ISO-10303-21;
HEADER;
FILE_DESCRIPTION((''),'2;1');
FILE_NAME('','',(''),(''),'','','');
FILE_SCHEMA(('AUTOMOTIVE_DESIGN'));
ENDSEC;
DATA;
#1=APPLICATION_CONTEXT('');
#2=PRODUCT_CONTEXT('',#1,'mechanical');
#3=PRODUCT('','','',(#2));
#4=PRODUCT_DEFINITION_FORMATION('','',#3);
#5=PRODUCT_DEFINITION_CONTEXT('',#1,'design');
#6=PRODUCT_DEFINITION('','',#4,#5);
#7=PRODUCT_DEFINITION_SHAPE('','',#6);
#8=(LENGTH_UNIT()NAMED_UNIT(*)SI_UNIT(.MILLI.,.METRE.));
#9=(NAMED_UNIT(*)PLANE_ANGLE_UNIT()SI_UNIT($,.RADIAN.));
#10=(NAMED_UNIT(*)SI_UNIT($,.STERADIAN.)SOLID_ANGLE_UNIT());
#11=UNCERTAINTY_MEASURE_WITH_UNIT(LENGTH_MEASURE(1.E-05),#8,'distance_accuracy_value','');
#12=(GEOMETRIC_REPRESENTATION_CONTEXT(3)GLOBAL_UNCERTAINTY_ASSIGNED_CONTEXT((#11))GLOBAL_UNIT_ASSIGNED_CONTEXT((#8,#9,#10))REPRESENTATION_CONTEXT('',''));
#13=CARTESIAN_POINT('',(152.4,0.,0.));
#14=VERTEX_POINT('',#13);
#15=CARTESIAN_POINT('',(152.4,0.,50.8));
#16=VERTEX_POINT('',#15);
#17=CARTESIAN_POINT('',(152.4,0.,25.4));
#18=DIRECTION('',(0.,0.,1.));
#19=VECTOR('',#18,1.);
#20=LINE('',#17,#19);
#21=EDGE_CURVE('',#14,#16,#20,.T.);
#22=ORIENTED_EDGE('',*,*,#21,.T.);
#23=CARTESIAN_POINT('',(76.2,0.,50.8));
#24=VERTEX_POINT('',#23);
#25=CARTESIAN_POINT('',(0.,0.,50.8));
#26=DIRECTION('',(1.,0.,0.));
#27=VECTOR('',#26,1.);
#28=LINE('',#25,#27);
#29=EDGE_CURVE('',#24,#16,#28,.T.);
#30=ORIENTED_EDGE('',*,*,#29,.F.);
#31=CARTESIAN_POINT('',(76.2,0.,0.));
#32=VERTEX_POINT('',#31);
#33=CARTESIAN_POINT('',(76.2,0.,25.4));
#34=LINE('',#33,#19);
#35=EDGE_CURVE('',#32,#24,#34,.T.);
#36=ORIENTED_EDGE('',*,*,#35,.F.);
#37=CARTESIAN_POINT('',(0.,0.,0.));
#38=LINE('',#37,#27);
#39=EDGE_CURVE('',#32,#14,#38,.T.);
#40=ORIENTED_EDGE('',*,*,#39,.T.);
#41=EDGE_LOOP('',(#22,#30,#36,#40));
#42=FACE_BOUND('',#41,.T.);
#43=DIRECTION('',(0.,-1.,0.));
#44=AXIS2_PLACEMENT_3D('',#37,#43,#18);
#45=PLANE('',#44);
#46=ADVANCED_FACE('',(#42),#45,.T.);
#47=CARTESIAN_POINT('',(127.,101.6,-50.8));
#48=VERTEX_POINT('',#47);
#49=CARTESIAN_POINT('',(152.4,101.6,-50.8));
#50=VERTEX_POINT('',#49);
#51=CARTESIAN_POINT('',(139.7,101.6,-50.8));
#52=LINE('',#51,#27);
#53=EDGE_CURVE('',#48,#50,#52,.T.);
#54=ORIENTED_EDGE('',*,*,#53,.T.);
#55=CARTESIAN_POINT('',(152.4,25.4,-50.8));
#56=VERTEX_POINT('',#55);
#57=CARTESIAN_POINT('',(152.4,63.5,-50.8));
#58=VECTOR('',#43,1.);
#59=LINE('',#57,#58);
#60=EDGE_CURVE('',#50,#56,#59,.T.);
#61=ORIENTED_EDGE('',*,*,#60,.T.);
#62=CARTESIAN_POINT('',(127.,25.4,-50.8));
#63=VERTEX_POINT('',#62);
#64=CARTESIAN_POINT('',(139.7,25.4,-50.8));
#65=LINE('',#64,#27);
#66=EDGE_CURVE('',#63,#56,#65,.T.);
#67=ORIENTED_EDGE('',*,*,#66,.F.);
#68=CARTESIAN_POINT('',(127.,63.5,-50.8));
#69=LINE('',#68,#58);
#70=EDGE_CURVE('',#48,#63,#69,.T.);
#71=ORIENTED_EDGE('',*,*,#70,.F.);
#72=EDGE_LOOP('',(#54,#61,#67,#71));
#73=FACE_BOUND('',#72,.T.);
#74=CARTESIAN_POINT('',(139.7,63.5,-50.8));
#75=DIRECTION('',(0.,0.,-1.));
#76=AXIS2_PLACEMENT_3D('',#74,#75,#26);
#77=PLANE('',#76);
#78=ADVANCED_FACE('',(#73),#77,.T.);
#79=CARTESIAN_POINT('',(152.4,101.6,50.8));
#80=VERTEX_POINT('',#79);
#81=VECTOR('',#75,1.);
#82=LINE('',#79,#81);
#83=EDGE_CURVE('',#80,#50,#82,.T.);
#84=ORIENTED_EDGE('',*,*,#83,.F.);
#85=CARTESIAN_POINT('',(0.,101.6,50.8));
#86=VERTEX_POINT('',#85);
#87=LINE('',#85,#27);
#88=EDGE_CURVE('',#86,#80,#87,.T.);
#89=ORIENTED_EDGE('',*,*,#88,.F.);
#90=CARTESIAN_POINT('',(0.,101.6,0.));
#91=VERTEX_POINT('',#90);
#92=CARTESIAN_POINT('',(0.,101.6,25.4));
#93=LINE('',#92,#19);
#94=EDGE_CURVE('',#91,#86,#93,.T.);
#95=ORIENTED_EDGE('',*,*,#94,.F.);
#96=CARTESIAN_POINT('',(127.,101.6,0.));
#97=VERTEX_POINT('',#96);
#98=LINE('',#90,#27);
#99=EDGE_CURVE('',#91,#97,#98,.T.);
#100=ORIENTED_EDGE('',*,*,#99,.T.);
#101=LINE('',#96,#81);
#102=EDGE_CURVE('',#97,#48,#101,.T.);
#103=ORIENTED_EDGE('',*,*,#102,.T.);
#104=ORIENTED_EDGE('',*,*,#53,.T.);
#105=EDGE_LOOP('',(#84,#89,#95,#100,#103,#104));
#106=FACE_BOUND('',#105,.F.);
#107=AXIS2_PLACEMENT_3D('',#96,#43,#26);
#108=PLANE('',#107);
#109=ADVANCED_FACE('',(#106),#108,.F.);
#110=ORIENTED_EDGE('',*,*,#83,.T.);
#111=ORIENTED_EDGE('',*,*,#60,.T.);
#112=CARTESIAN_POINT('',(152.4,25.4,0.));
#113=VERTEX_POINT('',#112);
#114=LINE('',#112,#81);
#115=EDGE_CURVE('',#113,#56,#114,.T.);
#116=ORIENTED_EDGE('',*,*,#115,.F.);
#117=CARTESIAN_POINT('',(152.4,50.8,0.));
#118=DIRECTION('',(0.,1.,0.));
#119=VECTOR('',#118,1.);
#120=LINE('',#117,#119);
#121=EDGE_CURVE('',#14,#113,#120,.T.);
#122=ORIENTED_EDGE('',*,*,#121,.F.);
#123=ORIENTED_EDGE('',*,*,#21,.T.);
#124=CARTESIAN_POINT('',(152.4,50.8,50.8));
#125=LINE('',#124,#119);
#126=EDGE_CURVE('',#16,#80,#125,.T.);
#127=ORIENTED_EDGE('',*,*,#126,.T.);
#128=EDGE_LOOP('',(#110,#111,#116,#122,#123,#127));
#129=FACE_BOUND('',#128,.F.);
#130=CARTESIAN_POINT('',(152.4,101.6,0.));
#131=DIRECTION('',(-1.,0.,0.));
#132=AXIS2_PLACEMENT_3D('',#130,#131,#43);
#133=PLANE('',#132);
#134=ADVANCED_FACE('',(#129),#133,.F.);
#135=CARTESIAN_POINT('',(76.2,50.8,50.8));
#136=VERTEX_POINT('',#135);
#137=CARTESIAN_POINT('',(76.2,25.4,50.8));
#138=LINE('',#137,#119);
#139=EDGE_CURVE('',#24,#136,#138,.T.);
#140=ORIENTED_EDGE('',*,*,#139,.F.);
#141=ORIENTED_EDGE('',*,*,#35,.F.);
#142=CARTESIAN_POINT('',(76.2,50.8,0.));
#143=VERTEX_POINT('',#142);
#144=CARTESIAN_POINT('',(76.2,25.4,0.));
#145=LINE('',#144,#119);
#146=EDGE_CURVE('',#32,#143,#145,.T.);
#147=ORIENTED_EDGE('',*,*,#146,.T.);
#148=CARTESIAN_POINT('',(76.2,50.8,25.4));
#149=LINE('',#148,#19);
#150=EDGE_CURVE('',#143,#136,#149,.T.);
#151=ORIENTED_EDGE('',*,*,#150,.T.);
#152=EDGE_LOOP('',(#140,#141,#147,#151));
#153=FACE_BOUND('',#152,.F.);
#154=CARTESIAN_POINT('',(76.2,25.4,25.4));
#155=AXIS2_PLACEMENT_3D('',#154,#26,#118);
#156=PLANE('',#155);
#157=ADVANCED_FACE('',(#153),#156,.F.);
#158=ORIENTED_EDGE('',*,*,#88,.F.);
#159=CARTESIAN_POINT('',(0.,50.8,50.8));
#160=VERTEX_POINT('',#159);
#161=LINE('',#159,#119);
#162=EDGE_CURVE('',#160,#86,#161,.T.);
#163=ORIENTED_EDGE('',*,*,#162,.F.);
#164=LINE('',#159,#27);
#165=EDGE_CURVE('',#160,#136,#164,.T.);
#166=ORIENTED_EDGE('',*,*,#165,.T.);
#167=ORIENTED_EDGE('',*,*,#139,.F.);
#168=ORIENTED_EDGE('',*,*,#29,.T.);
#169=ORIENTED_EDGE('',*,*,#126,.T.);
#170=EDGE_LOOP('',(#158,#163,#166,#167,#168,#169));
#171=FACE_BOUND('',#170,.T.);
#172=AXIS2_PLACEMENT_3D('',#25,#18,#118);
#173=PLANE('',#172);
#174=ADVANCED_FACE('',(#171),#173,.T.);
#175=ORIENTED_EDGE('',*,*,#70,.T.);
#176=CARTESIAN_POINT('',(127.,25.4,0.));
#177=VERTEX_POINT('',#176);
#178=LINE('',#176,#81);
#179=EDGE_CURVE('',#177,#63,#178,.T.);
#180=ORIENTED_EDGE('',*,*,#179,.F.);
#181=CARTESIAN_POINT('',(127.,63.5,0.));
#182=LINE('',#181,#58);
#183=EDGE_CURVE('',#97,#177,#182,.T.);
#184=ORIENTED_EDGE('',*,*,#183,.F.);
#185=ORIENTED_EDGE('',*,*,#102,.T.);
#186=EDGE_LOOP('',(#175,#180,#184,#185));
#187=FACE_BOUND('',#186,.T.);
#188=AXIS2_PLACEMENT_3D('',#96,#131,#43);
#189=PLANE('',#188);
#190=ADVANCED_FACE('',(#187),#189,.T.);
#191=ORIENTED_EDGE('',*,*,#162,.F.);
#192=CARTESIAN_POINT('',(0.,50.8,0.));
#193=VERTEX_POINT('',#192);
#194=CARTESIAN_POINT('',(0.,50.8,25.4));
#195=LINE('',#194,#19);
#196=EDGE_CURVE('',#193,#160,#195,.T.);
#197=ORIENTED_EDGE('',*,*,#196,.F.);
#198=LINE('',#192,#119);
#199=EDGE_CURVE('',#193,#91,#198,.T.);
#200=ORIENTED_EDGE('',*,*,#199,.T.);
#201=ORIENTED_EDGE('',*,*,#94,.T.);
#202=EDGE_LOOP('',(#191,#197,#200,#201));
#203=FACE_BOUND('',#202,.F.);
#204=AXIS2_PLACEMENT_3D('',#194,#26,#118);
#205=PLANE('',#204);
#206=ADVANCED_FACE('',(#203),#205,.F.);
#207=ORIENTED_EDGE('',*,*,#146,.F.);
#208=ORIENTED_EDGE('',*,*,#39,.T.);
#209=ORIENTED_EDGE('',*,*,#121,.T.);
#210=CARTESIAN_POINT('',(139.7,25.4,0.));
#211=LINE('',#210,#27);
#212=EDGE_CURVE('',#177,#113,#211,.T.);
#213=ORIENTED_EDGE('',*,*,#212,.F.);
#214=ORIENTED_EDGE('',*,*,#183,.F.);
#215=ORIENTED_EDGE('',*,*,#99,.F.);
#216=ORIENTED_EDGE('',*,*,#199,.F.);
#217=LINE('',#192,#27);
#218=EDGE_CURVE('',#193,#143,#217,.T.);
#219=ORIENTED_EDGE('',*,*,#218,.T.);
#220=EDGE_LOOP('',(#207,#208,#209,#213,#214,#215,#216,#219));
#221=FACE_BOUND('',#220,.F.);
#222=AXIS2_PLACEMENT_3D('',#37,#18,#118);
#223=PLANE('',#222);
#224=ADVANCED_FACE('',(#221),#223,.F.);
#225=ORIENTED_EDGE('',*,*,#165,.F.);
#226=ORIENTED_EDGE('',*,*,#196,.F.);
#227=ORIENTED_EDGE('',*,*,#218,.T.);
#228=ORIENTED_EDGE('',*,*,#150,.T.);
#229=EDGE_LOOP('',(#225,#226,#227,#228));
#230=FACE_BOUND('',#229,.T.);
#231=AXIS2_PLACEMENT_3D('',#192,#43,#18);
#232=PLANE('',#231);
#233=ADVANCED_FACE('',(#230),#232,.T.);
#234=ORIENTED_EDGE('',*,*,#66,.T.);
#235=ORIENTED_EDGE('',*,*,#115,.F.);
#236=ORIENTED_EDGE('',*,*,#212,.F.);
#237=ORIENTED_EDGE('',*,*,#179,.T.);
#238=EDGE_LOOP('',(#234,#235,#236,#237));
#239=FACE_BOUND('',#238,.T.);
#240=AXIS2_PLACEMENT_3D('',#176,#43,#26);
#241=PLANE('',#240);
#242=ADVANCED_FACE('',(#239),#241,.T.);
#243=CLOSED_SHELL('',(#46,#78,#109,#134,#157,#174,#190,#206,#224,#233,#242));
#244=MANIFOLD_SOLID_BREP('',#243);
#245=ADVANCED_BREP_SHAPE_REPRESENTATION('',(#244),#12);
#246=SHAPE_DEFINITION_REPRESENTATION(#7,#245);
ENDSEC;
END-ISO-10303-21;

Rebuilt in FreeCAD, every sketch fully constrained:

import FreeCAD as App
import Part
import Sketcher
Q = App.Units.Quantity


def add_polygon(sketch, points):
    """Adds a closed chain of lines whose ends are joined by coincident constraints."""
    first, n = sketch.GeometryCount, len(points)
    for a, b in zip(points, points[1:] + points[:1]):
        sketch.addGeometry(Part.LineSegment(App.Vector(*a, 0), App.Vector(*b, 0)), False)
    for i in range(n):
        sketch.addConstraint(Sketcher.Constraint("Coincident", first + i, 2, first + (i + 1) % n, 1))

doc = App.newDocument("Part")
params = doc.addObject("Spreadsheet::Sheet", "Params")
for row, (alias, value) in enumerate([
    ("sketch1_width", "4 in"),
    ("sketch1_height", "2 in"),
    ("pad1_length", "6 in"),
    ("sketch2_width", "2 in"),
    ("pocket1_length", "3 in"),
    ("sketch3_width", "1 in"),
    ("sketch3_height", "3 in"),
    ("pad2_length", "2 in"),
], start=1):
    params.set(f"A{row}", alias)
    params.set(f"B{row}", "=" + value)
    params.setAlias(f"B{row}", alias)

body = doc.addObject("PartDesign::Body", "Body")

# Sketch on YZ plane
sketch1 = doc.addObject("Sketcher::SketchObject", "Sketch")
body.addObject(sketch1)
sketch1.AttachmentSupport = (doc.YZ_Plane, [""])
sketch1.MapMode = "FlatFace"
add_polygon(sketch1, [(0, 51), (0, 0), (102, 0), (102, 51)])  # lines 0-3
sketch1.addConstraint([
    Sketcher.Constraint("Vertical", 0),
    Sketcher.Constraint("Horizontal", 1),
    Sketcher.Constraint("Vertical", 2),
    Sketcher.Constraint("Horizontal", 3),
    Sketcher.Constraint("Coincident", 0, 2, -1, 1),
    Sketcher.Constraint("DistanceX", 1, 1, 1, 2, Q("4 in")),
    Sketcher.Constraint("DistanceY", 0, 2, 0, 1, Q("2 in")),
])
sketch1.setExpression("Constraints[9]", "Params.sketch1_width")
sketch1.setExpression("Constraints[10]", "Params.sketch1_height")
pad1 = doc.addObject("PartDesign::Pad", "Pad")
body.addObject(pad1)
pad1.Profile = sketch1
pad1.setExpression("Length", "Params.pad1_length")

# Sketch on YZ plane
sketch2 = doc.addObject("Sketcher::SketchObject", "Sketch001")
body.addObject(sketch2)
sketch2.AttachmentSupport = (doc.YZ_Plane, [""])
sketch2.MapMode = "FlatFace"
add_polygon(sketch2, [(0, 51), (0, 0), (51, 0), (51, 51)])  # lines 0-3
sketch2.addConstraint([
    Sketcher.Constraint("Vertical", 0),
    Sketcher.Constraint("Horizontal", 1),
    Sketcher.Constraint("Vertical", 2),
    Sketcher.Constraint("Horizontal", 3),
    Sketcher.Constraint("Coincident", 0, 2, -1, 1),
    Sketcher.Constraint("Equal", 3, 0),
    Sketcher.Constraint("DistanceX", 1, 1, 1, 2, Q("2 in")),
])
sketch2.setExpression("Constraints[10]", "Params.sketch2_width")
pocket1 = doc.addObject("PartDesign::Pocket", "Pocket")
body.addObject(pocket1)
pocket1.Profile = sketch2
pocket1.setExpression("Length", "Params.pocket1_length")
pocket1.Reversed = True

# Sketch on XY plane
sketch3 = doc.addObject("Sketcher::SketchObject", "Sketch002")
body.addObject(sketch3)
sketch3.AttachmentSupport = (doc.XY_Plane, [""])
sketch3.MapMode = "FlatFace"
add_polygon(sketch3, [(127, 25), (127, 102), (152, 102), (152, 25)])  # lines 0-3
sketch3.addConstraint([
    Sketcher.Constraint("Vertical", 0),
    Sketcher.Constraint("Horizontal", 1),
    Sketcher.Constraint("Vertical", 2),
    Sketcher.Constraint("Horizontal", 3),
    Sketcher.Constraint("DistanceX", 1, 1, 1, 2, Q("1 in")),
    Sketcher.Constraint("DistanceY", 0, 1, 0, 2, Q("3 in")),
    Sketcher.Constraint("DistanceX", -1, 1, 0, 2, Q("5 in")),
    Sketcher.Constraint("DistanceY", -1, 1, 0, 2, Q("4 in")),
])
sketch3.setExpression("Constraints[8]", "Params.sketch3_width")
sketch3.setExpression("Constraints[9]", "Params.sketch3_height")
pad2 = doc.addObject("PartDesign::Pad", "Pad001")
body.addObject(pad2)
pad2.Profile = sketch3
pad2.setExpression("Length", "Params.pad2_length")
pad2.Reversed = True

doc.recompute()
